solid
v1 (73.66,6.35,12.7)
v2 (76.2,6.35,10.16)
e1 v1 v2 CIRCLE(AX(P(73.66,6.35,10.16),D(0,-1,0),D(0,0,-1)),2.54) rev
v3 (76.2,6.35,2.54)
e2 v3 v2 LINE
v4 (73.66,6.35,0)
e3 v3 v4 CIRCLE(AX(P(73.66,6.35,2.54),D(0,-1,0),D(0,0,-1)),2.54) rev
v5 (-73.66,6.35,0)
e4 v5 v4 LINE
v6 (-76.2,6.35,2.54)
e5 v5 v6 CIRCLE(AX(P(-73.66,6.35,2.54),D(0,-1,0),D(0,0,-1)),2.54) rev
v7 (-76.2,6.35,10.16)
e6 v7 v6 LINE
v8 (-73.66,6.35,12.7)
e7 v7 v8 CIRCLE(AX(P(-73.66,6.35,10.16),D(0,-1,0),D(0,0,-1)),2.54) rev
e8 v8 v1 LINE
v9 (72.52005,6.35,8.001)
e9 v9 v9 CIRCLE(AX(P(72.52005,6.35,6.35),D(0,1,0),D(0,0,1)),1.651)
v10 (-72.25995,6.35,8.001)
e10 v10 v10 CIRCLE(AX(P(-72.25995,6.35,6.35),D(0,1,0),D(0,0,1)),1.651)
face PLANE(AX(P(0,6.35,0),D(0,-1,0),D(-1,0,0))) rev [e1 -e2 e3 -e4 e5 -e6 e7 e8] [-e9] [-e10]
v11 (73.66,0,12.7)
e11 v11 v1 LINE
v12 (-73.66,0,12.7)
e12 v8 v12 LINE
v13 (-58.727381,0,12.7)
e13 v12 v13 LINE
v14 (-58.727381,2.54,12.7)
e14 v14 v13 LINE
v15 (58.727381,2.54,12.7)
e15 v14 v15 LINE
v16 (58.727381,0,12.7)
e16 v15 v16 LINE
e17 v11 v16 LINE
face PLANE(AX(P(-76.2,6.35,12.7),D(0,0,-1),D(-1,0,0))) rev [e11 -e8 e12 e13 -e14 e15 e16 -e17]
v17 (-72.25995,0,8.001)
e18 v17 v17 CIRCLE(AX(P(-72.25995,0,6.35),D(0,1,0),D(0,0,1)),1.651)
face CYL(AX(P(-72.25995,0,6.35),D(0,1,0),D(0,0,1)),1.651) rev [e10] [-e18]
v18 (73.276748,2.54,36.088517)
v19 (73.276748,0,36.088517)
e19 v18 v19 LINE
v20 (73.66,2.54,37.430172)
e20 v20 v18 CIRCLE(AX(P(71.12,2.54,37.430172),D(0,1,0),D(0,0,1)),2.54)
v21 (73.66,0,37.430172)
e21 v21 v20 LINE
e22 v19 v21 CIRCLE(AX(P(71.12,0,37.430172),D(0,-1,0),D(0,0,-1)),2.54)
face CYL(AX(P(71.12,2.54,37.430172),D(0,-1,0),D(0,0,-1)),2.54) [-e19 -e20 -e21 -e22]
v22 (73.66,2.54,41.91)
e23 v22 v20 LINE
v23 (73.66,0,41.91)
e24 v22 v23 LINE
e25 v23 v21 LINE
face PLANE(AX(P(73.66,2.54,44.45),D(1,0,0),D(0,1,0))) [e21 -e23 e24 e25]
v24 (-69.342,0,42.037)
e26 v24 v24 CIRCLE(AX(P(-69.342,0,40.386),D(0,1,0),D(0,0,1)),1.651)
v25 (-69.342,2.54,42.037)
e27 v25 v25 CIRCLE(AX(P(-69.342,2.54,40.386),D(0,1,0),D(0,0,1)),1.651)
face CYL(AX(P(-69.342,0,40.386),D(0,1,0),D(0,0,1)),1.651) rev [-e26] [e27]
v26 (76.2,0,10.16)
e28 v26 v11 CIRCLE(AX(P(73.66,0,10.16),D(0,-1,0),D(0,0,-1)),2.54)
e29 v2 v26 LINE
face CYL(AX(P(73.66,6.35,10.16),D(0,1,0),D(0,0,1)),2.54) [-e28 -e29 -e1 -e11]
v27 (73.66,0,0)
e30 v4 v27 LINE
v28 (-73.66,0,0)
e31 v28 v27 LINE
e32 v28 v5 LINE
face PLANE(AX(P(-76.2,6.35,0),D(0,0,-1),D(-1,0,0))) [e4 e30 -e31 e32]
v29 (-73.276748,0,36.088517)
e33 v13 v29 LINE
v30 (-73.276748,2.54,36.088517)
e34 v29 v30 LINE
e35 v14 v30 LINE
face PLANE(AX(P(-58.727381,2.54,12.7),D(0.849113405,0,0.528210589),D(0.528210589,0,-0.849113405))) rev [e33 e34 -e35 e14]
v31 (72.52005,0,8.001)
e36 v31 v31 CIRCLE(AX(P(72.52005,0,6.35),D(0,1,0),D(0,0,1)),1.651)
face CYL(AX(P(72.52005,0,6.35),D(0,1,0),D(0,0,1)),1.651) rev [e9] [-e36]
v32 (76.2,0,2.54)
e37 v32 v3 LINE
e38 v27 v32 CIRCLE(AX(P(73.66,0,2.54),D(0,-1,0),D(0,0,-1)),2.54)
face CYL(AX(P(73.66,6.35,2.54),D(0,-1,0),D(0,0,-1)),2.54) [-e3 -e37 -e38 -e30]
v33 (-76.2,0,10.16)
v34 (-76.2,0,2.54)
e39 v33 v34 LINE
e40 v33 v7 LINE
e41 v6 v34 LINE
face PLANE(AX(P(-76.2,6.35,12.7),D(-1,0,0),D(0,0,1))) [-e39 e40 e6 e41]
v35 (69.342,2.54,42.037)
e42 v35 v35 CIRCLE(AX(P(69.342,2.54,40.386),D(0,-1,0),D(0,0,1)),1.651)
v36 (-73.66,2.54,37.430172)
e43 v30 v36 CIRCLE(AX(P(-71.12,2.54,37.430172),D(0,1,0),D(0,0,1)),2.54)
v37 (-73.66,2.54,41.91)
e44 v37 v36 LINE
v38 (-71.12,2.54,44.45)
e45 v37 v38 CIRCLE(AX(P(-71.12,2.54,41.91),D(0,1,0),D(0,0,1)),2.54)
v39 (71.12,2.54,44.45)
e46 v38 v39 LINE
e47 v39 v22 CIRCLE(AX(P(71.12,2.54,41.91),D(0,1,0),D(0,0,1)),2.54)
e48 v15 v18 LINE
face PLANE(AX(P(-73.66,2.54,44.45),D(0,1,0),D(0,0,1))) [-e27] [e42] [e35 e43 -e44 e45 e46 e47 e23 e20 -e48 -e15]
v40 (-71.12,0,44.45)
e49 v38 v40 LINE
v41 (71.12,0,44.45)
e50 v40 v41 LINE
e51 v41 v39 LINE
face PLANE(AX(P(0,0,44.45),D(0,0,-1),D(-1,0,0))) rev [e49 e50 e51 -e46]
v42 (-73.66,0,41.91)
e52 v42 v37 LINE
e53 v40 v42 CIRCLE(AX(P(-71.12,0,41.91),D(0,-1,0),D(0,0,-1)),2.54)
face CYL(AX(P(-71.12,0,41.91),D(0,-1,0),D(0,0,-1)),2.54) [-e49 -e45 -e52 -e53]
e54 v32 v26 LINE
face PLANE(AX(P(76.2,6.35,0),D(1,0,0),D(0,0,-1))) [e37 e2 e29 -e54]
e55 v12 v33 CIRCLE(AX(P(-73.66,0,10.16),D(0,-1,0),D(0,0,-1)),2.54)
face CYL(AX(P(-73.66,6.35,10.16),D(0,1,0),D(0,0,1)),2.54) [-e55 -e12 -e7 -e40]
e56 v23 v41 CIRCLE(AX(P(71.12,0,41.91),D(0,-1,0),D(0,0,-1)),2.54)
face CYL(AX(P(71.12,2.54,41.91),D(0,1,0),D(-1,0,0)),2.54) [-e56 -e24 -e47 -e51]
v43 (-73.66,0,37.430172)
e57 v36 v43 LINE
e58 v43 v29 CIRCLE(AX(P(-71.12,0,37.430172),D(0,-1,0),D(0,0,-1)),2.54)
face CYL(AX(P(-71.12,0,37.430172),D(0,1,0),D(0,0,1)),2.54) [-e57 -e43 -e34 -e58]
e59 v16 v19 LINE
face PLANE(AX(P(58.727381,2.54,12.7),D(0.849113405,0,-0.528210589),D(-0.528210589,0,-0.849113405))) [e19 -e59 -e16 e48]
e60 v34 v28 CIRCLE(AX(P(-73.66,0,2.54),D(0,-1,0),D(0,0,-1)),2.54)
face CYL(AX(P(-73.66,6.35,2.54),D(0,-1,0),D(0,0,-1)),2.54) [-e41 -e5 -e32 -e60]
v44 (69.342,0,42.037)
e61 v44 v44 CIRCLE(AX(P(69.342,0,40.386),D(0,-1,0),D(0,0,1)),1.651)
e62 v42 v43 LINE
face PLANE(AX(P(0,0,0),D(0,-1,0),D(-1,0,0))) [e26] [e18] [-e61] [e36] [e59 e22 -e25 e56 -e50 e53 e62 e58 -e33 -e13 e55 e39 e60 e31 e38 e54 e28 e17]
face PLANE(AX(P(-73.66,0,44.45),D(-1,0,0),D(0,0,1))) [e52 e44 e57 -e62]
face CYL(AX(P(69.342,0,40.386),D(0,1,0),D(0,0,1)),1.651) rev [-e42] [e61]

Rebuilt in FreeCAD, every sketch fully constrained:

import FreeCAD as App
import Part
import Sketcher

V = App.Vector
Q = App.Units.Quantity


def edges_at(feature, points):
    """Names of the edges that pass closest to the given points."""
    edges = feature.Shape.Edges
    near = lambda p: min(range(len(edges)), key=lambda i: edges[i].distToShape(Part.Vertex(*p))[0])
    return sorted({f"Edge{near(p) + 1}" for p in points})

doc = App.newDocument("Part")
params = doc.addObject("Spreadsheet::Sheet", "Params")
for row, (alias, value) in enumerate([
    ("sketch1_width", "6 in"),
    ("sketch1_height", "0.5 in"),
    ("pad1_length", "0.25 in"),
    ("fillet_radius", "0.1 in"),
    ("sketch2_diameter", "0.13 in"),
    ("pocket1_length", "0.25 in"),
    ("linearpattern_pitch", "5.7 in"),
    ("sketch3_width", "5.8 in"),
    ("sketch3_height", "0.1 in"),
    ("pad2_length", "1.25 in"),
    ("sketch4_length", "1.113 in"),
    ("pocket2_length", "0.1 in"),
    ("fillet2_radius", "0.1 in"),
    ("sketch5_diameter", "0.13 in"),
    ("pocket3_length", "0.1 in"),
], start=1):
    params.set(f"A{row}", alias)
    params.set(f"B{row}", "=" + value)
    params.setAlias(f"B{row}", alias)

body = doc.addObject("PartDesign::Body", "Body")

# Sketch on XZ plane
sketch1 = body.newObject("Sketcher::SketchObject", "Sketch")
sketch1.AttachmentSupport = (doc.getObject("XZ_Plane"), [""])
sketch1.MapMode = "FlatFace"
sketch1.addGeometry(Part.LineSegment(V(-76.2, 0, 0), V(-76.2, 12.7, 0)), False)
sketch1.addGeometry(Part.LineSegment(V(-76.2, 12.7, 0), V(76.2, 12.7, 0)), False)
sketch1.addGeometry(Part.LineSegment(V(76.2, 12.7, 0), V(76.2, 0, 0)), False)
sketch1.addGeometry(Part.LineSegment(V(76.2, 0, 0), V(-76.2, 0, 0)), False)
sketch1.addConstraint(Sketcher.Constraint("Coincident", 0, 2, 1, 1))
sketch1.addConstraint(Sketcher.Constraint("Coincident", 1, 2, 2, 1))
sketch1.addConstraint(Sketcher.Constraint("Coincident", 2, 2, 3, 1))
sketch1.addConstraint(Sketcher.Constraint("Coincident", 3, 2, 0, 1))
sketch1.addConstraint(Sketcher.Constraint("Vertical", 0))
sketch1.addConstraint(Sketcher.Constraint("Horizontal", 1))
sketch1.addConstraint(Sketcher.Constraint("Vertical", 2))
sketch1.addConstraint(Sketcher.Constraint("Horizontal", 3))
sketch1.addConstraint(Sketcher.Constraint("Symmetric", 2, 2, 3, 2, -1, 1))
sketch1.addConstraint(Sketcher.Constraint("DistanceX", 1, 1, 1, 2, Q("6 in")))
sketch1.addConstraint(Sketcher.Constraint("DistanceY", 0, 1, 0, 2, Q("0.5 in")))
sketch1.setExpression("Constraints[9]", "Params.sketch1_width")
sketch1.setExpression("Constraints[10]", "Params.sketch1_height")
pad1 = body.newObject("PartDesign::Pad", "Pad")
pad1.Profile = sketch1
pad1.setExpression("Length", "Params.pad1_length")
pad1.Reversed = True
doc.recompute()

fillet = body.newObject("PartDesign::Fillet", "Fillet")
fillet.Base = (pad1, edges_at(pad1, [
    (-76.2, 3.175, 12.7),
    (-76.2, 3.175, 0),
    (76.2, 3.175, 0),
    (76.2, 3.175, 12.7),
]))
fillet.setExpression("Radius", "Params.fillet_radius")

# Sketch on XZ plane
sketch2 = body.newObject("Sketcher::SketchObject", "Sketch001")
sketch2.AttachmentSupport = (doc.getObject("XZ_Plane"), [""])
sketch2.MapMode = "FlatFace"
sketch2.AttachmentOffset = App.Placement(V(0, 0, -0.25 * 25.4), App.Rotation())
sketch2.addGeometry(Part.Circle(V(72.52005, 6.35, 0), V(0, 0, 1), 1.651), False)
sketch2.addConstraint(Sketcher.Constraint("Diameter", 0, Q("0.13 in")))
sketch2.addConstraint(Sketcher.Constraint("DistanceY", -1, 1, 0, 3, Q("0.25 in")))
sketch2.addConstraint(Sketcher.Constraint("DistanceX", -1, 1, 0, 3, 72.52005))
sketch2.setExpression("Constraints[0]", "Params.sketch2_diameter")
pocket1 = body.newObject("PartDesign::Pocket", "Pocket")
pocket1.Profile = sketch2
pocket1.setExpression("Length", "Params.pocket1_length")
pocket1.Reversed = True
doc.recompute()

linearpattern = body.newObject("PartDesign::LinearPattern", "LinearPattern")
linearpattern.Originals = [pocket1]
linearpattern.Direction = (doc.getObject("X_Axis"), [""])
linearpattern.Mode = "offset"
linearpattern.setExpression("Offset", "Params.linearpattern_pitch")
linearpattern.Occurrences = 2
linearpattern.Reversed = True
body.Tip = linearpattern

# Sketch on XY plane
sketch3 = body.newObject("Sketcher::SketchObject", "Sketch002")
sketch3.AttachmentSupport = (doc.getObject("XY_Plane"), [""])
sketch3.MapMode = "FlatFace"
sketch3.AttachmentOffset = App.Placement(V(0, 0, 0.5 * 25.4), App.Rotation())
sketch3.addGeometry(Part.LineSegment(V(-73.66, 2.54, 0), V(-73.66, 0, 0)), False)
sketch3.addGeometry(Part.LineSegment(V(-73.66, 0, 0), V(73.66, 0, 0)), False)
sketch3.addGeometry(Part.LineSegment(V(73.66, 0, 0), V(73.66, 2.54, 0)), False)
sketch3.addGeometry(Part.LineSegment(V(73.66, 2.54, 0), V(-73.66, 2.54, 0)), False)
sketch3.addConstraint(Sketcher.Constraint("Coincident", 0, 2, 1, 1))
sketch3.addConstraint(Sketcher.Constraint("Coincident", 1, 2, 2, 1))
sketch3.addConstraint(Sketcher.Constraint("Coincident", 2, 2, 3, 1))
sketch3.addConstraint(Sketcher.Constraint("Coincident", 3, 2, 0, 1))
sketch3.addConstraint(Sketcher.Constraint("Vertical", 0))
sketch3.addConstraint(Sketcher.Constraint("Horizontal", 1))
sketch3.addConstraint(Sketcher.Constraint("Vertical", 2))
sketch3.addConstraint(Sketcher.Constraint("Horizontal", 3))
sketch3.addConstraint(Sketcher.Constraint("Symmetric", 0, 2, 1, 2, -1, 1))
sketch3.addConstraint(Sketcher.Constraint("DistanceX", 1, 1, 1, 2, Q("5.8 in")))
sketch3.addConstraint(Sketcher.Constraint("DistanceY", 0, 2, 0, 1, Q("0.1 in")))
sketch3.setExpression("Constraints[9]", "Params.sketch3_width")
sketch3.setExpression("Constraints[10]", "Params.sketch3_height")
pad2 = body.newObject("PartDesign::Pad", "Pad001")
pad2.Profile = sketch3
pad2.setExpression("Length", "Params.pad2_length")

# Sketch on XZ plane
sketch4 = body.newObject("Sketcher::SketchObject", "Sketch003")
sketch4.AttachmentSupport = (doc.getObject("XZ_Plane"), [""])
sketch4.MapMode = "FlatFace"
sketch4.addGeometry(Part.LineSegment(V(58.727381, 12.7, 0), V(73.66, 12.7, 0)), False)
sketch4.addGeometry(Part.LineSegment(V(73.66, 12.7, 0), V(73.66, 36.704606, 0)), False)
sketch4.addGeometry(Part.LineSegment(V(73.66, 36.704606, 0), V(58.727381, 12.7, 0)), False)
sketch4.addConstraint(Sketcher.Constraint("Coincident", 0, 2, 1, 1))
sketch4.addConstraint(Sketcher.Constraint("Coincident", 1, 2, 2, 1))
sketch4.addConstraint(Sketcher.Constraint("Coincident", 2, 2, 0, 1))
sketch4.addConstraint(Sketcher.Constraint("Horizontal", 0))
sketch4.addConstraint(Sketcher.Constraint("Vertical", 1))
sketch4.addConstraint(Sketcher.Constraint("DistanceX", -1, 1, 0, 2, Q("2.9 in")))
sketch4.addConstraint(Sketcher.Constraint("DistanceY", -1, 1, 0, 2, Q("0.5 in")))
sketch4.addConstraint(Sketcher.Constraint("Distance", 2, Q("1.113 in")))
sketch4.addConstraint(Sketcher.Constraint("DistanceX", 0, 1, 0, 2, 14.932619))
sketch4.setExpression("Constraints[7]", "Params.sketch4_length")
pocket2 = body.newObject("PartDesign::Pocket", "Pocket001")
pocket2.Profile = sketch4
pocket2.setExpression("Length", "Params.pocket2_length")
doc.recompute()

mirrored = body.newObject("PartDesign::Mirrored", "Mirrored")
mirrored.Originals = [pocket2]
mirrored.MirrorPlane = (doc.getObject("YZ_Plane"), [""])
body.Tip = mirrored
doc.recompute()

fillet2 = body.newObject("PartDesign::Fillet", "Fillet001")
fillet2.Base = (mirrored, edges_at(mirrored, [
    (-73.66, 1.27, 36.705),
    (73.66, 1.27, 44.45),
    (-73.66, 1.27, 44.45),
    (73.66, 1.27, 36.705),
]))
fillet2.setExpression("Radius", "Params.fillet2_radius")

# Sketch on XZ plane
sketch5 = body.newObject("Sketcher::SketchObject", "Sketch004")
sketch5.AttachmentSupport = (doc.getObject("XZ_Plane"), [""])
sketch5.MapMode = "FlatFace"
sketch5.AttachmentOffset = App.Placement(V(0, 0, -0.1 * 25.4), App.Rotation())
sketch5.addGeometry(Part.Circle(V(-69.342, 40.386, 0), V(0, 0, 1), 1.651), False)
sketch5.addConstraint(Sketcher.Constraint("Diameter", 0, Q("0.13 in")))
sketch5.addConstraint(Sketcher.Constraint("DistanceX", 0, 3, -1, 1, Q("2.73 in")))
sketch5.addConstraint(Sketcher.Constraint("DistanceY", -1, 1, 0, 3, Q("1.59 in")))
sketch5.setExpression("Constraints[0]", "Params.sketch5_diameter")
pocket3 = body.newObject("PartDesign::Pocket", "Pocket002")
pocket3.Profile = sketch5
pocket3.setExpression("Length", "Params.pocket3_length")
pocket3.Reversed = True
doc.recompute()

mirrored2 = body.newObject("PartDesign::Mirrored", "Mirrored001")
mirrored2.Originals = [pocket3]
mirrored2.MirrorPlane = (doc.getObject("YZ_Plane"), [""])
body.Tip = mirrored2

doc.recompute()
